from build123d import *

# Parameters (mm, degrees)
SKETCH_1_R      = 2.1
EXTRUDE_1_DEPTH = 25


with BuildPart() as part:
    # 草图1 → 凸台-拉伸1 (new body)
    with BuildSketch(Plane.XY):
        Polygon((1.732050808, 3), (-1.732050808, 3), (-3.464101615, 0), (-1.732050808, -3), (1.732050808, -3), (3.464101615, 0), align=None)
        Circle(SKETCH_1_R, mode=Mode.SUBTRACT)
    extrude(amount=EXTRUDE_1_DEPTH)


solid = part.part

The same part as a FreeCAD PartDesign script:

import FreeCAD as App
import Part
import Sketcher
from FreeCAD import Vector
Q = App.Units.Quantity


def add_polygon(sketch, points):
    """Adds a closed chain of lines whose ends are joined by coincident constraints."""
    first, n = sketch.GeometryCount, len(points)
    for a, b in zip(points, points[1:] + points[:1]):
        sketch.addGeometry(Part.LineSegment(App.Vector(*a, 0), App.Vector(*b, 0)), False)
    for i in range(n):
        sketch.addConstraint(Sketcher.Constraint("Coincident", first + i, 2, first + (i + 1) % n, 1))

doc = App.newDocument("Part")
body = doc.addObject("PartDesign::Body", "Body")

# Sketch on XY plane
sketch1 = body.newObject("Sketcher::SketchObject", "Sketch")
sketch1.AttachmentSupport = (doc.getObject("XY_Plane"), [""])
sketch1.MapMode = "FlatFace"
add_polygon(sketch1, [(1.7, 3), (-1.7, 3), (-3.5, 0), (-1.7, -3), (1.7, -3), (3.5, 0)])  # lines 0-5
sketch1.addGeometry(Part.Circle(Vector(0, 0, 0), Vector(0, 0, 1), 2.1), False)  # 6
sketch1.addConstraint(Sketcher.Constraint("Horizontal", 0))
sketch1.addConstraint(Sketcher.Constraint("Horizontal", 3))
sketch1.addConstraint(Sketcher.Constraint("Coincident", 6, 3, -1, 1))
sketch1.addConstraint(Sketcher.Constraint("Symmetric", 0, 2, 3, 2, -1, 1))
sketch1.addConstraint(Sketcher.Constraint("Symmetric", 1, 2, 4, 2, -1, 1))
sketch1.addConstraint(Sketcher.Constraint("PointOnObject", 1, 2, -1))
sketch1.addConstraint(Sketcher.Constraint("Parallel", 2, 5))
sketch1.addConstraint(Sketcher.Constraint("Vertical", 0, 2, 2, 2))
sketch1.addConstraint(Sketcher.Constraint("Diameter", 6, 4.2))
sketch1.addConstraint(Sketcher.Constraint("Angle", 1, Q("-120 deg")))
sketch1.addConstraint(Sketcher.Constraint("DistanceY", -1, 1, 0, 2, 3.0))
sketch1.addConstraint(Sketcher.Constraint("DistanceX", 0, 2, 0, 1, 3.464102))
pad1 = body.newObject("PartDesign::Pad", "Pad")
pad1.Profile = sketch1
pad1.Length = 25

doc.recompute()
